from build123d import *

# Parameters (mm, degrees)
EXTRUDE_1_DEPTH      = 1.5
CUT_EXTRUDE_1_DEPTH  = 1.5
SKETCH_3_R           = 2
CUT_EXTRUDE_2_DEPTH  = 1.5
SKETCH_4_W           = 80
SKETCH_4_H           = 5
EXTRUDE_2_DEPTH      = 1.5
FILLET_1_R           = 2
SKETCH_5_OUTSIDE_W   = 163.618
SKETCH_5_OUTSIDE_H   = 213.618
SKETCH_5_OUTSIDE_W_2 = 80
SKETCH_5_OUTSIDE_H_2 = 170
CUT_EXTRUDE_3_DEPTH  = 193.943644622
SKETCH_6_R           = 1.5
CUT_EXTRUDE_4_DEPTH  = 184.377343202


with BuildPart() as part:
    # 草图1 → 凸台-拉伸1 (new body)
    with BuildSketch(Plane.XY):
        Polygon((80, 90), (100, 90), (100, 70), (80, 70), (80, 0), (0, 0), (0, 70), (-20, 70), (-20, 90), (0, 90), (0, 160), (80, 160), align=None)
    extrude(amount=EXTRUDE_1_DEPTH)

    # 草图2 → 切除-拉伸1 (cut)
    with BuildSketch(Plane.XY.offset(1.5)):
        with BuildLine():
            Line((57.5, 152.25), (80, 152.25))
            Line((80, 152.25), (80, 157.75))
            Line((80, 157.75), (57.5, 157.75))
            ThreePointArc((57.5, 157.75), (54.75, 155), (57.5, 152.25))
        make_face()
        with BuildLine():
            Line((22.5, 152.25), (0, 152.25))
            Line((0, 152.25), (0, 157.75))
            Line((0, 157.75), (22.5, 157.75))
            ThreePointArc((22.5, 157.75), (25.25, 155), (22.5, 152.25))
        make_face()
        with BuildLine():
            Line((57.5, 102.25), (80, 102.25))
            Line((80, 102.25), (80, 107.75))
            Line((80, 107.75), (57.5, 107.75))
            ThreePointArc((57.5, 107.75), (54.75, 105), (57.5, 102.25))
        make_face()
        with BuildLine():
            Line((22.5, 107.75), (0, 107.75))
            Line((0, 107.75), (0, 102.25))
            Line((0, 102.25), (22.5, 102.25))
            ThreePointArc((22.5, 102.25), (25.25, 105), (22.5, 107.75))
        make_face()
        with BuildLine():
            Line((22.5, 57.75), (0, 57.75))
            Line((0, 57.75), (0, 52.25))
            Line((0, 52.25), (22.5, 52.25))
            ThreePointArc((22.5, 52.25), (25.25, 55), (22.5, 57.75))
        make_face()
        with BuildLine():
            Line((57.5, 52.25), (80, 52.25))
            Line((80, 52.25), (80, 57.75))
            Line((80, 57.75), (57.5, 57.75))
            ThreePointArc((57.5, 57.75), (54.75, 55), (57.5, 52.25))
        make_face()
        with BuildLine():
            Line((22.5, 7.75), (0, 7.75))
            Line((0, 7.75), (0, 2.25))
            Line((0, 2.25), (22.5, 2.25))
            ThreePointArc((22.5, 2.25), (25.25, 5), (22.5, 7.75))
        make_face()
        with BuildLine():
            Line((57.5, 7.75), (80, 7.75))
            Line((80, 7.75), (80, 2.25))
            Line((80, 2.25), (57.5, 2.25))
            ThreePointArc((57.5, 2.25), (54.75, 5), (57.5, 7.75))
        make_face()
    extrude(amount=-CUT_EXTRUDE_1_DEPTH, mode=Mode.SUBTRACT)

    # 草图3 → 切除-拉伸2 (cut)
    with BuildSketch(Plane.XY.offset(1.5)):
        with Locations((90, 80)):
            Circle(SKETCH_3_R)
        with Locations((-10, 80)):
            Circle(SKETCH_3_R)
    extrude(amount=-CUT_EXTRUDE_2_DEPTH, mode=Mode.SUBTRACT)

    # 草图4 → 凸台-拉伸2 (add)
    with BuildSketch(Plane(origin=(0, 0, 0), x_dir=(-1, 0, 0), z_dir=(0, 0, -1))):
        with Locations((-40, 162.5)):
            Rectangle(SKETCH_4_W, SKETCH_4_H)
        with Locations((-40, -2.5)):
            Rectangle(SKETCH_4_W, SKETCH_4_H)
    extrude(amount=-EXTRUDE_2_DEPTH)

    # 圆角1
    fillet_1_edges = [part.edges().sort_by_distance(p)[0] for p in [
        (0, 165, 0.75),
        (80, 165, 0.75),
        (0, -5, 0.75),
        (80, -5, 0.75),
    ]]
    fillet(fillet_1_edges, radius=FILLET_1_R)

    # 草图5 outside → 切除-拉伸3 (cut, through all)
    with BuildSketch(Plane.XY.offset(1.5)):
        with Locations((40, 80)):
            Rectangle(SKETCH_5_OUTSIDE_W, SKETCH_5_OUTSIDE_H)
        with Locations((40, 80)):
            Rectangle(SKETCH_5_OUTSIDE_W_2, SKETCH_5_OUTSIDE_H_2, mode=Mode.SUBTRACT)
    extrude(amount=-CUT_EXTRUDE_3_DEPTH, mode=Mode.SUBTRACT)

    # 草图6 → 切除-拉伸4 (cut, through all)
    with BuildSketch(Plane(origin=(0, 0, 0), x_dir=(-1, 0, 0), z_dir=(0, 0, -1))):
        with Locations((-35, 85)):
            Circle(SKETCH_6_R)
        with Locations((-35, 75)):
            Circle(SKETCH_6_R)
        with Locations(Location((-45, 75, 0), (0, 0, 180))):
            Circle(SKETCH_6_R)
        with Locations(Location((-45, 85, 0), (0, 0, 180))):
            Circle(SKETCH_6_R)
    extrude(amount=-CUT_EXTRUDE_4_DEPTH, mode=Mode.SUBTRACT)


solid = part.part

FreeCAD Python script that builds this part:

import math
import FreeCAD as App
import Part
import Sketcher

V = App.Vector
Q = App.Units.Quantity


def edges_at(feature, points):
    """Names of the edges that pass closest to the given points."""
    edges = feature.Shape.Edges
    near = lambda p: min(range(len(edges)), key=lambda i: edges[i].distToShape(Part.Vertex(*p))[0])
    return sorted({f"Edge{near(p) + 1}" for p in points})


def add_polygon(sketch, points):
    """Adds a closed chain of lines whose ends are joined by coincident constraints."""
    first, n = sketch.GeometryCount, len(points)
    for a, b in zip(points, points[1:] + points[:1]):
        sketch.addGeometry(Part.LineSegment(App.Vector(*a, 0), App.Vector(*b, 0)), False)
    for i in range(n):
        sketch.addConstraint(Sketcher.Constraint("Coincident", first + i, 2, first + (i + 1) % n, 1))

doc = App.newDocument("Part")
body = doc.addObject("PartDesign::Body", "Body")

# Sketch on XY plane
sketch1 = body.newObject("Sketcher::SketchObject", "Sketch")
sketch1.AttachmentSupport = (doc.getObject("XY_Plane"), [""])
sketch1.MapMode = "FlatFace"
add_polygon(sketch1, [(100, 90), (80, 90), (80, 160), (0, 160), (0, 90), (-20, 90), (-20, 70), (0, 70), (0, 0), (80, 0), (80, 70), (100, 70)])  # lines 0-11
sketch1.addConstraint([
    Sketcher.Constraint("Horizontal", 0),
    Sketcher.Constraint("Vertical", 1),
    Sketcher.Constraint("Horizontal", 2),
    Sketcher.Constraint("Vertical", 3),
    Sketcher.Constraint("Horizontal", 4),
    Sketcher.Constraint("Vertical", 5),
    Sketcher.Constraint("Horizontal", 6),
    Sketcher.Constraint("Vertical", 7),
    Sketcher.Constraint("Horizontal", 8),
    Sketcher.Constraint("Vertical", 9),
    Sketcher.Constraint("Horizontal", 10),
    Sketcher.Constraint("Vertical", 11),
    Sketcher.Constraint("Coincident", 7, 2, -1, 1),
    Sketcher.Constraint("PointOnObject", 2, 2, -2),
    Sketcher.Constraint("Horizontal", 0, 2, 3, 2),
    Sketcher.Constraint("Horizontal", 6, 2, 9, 2),
    Sketcher.Constraint("Vertical", 1, 2, 8, 2),
    Sketcher.Constraint("Equal", 0, 4),
    Sketcher.Constraint("Equal", 10, 5),
    Sketcher.Constraint("Equal", 3, 7),
    Sketcher.Constraint("DistanceX", 0, 2, 0, 1, Q("20 mm")),
    Sketcher.Constraint("DistanceX", 2, 2, 2, 1, Q("80 mm")),
    Sketcher.Constraint("DistanceY", 1, 1, 1, 2, Q("70 mm")),
])
pad1 = body.newObject("PartDesign::Pad", "Pad")
pad1.Profile = sketch1
pad1.Length = 1.5

# Sketch on XY plane
sketch2 = body.newObject("Sketcher::SketchObject", "Sketch001")
sketch2.AttachmentSupport = (doc.getObject("XY_Plane"), [""])
sketch2.MapMode = "FlatFace"
sketch2.AttachmentOffset = App.Placement(V(0, 0, 1.5), App.Rotation())
sketch2.addGeometry([
    Part.LineSegment(V(57.5, 152.2, 0), V(80, 152.2, 0)),  # 0
    Part.LineSegment(V(80, 152.2, 0), V(80, 157.8, 0)),  # 1
    Part.LineSegment(V(80, 157.8, 0), V(57.5, 157.8, 0)),  # 2
    Part.ArcOfCircle(Part.Circle(V(57.5, 155, 0), V(0, 0, 1), 2.8), math.radians(90), math.radians(270)),  # 3
    Part.LineSegment(V(0, 152.2, 0), V(22.5, 152.2, 0)),  # 4
    Part.ArcOfCircle(Part.Circle(V(22.5, 155, 0), V(0, 0, 1), 2.8), math.radians(-90), math.radians(90)),  # 5
    Part.LineSegment(V(22.5, 157.8, 0), V(0, 157.8, 0)),  # 6
    Part.LineSegment(V(0, 157.8, 0), V(0, 152.2, 0)),  # 7
    Part.LineSegment(V(57.5, 102.2, 0), V(80, 102.2, 0)),  # 8
    Part.LineSegment(V(80, 102.2, 0), V(80, 107.8, 0)),  # 9
    Part.LineSegment(V(80, 107.8, 0), V(57.5, 107.8, 0)),  # 10
    Part.ArcOfCircle(Part.Circle(V(57.5, 105, 0), V(0, 0, 1), 2.8), math.radians(90), math.radians(270)),  # 11
    Part.LineSegment(V(22.5, 107.8, 0), V(0, 107.8, 0)),  # 12
    Part.LineSegment(V(0, 107.8, 0), V(0, 102.2, 0)),  # 13
    Part.LineSegment(V(0, 102.2, 0), V(22.5, 102.2, 0)),  # 14
    Part.ArcOfCircle(Part.Circle(V(22.5, 105, 0), V(0, 0, 1), 2.8), math.radians(-90), math.radians(90)),  # 15
    Part.LineSegment(V(22.5, 57.8, 0), V(0, 57.8, 0)),  # 16
    Part.LineSegment(V(0, 57.8, 0), V(0, 52.2, 0)),  # 17
    Part.LineSegment(V(0, 52.2, 0), V(22.5, 52.2, 0)),  # 18
    Part.ArcOfCircle(Part.Circle(V(22.5, 55, 0), V(0, 0, 1), 2.8), math.radians(-90), math.radians(90)),  # 19
    Part.LineSegment(V(57.5, 52.2, 0), V(80, 52.2, 0)),  # 20
    Part.LineSegment(V(80, 52.2, 0), V(80, 57.8, 0)),  # 21
    Part.LineSegment(V(80, 57.8, 0), V(57.5, 57.8, 0)),  # 22
    Part.ArcOfCircle(Part.Circle(V(57.5, 55, 0), V(0, 0, 1), 2.8), math.radians(90), math.radians(270)),  # 23
    Part.LineSegment(V(22.5, 7.8, 0), V(0, 7.8, 0)),  # 24
    Part.LineSegment(V(0, 7.8, 0), V(0, 2.2, 0)),  # 25
    Part.LineSegment(V(0, 2.2, 0), V(22.5, 2.2, 0)),  # 26
    Part.ArcOfCircle(Part.Circle(V(22.5, 5, 0), V(0, 0, 1), 2.8), math.radians(-90), math.radians(90)),  # 27
    Part.LineSegment(V(80, 7.8, 0), V(57.5, 7.8, 0)),  # 28
    Part.ArcOfCircle(Part.Circle(V(57.5, 5, 0), V(0, 0, 1), 2.8), math.radians(90), math.radians(270)),  # 29
    Part.LineSegment(V(57.5, 2.2, 0), V(80, 2.2, 0)),  # 30
    Part.LineSegment(V(80, 2.2, 0), V(80, 7.8, 0)),  # 31
], False)
sketch2.addConstraint([
    Sketcher.Constraint("Coincident", 0, 2, 1, 1),
    Sketcher.Constraint("Coincident", 1, 2, 2, 1),
    Sketcher.Constraint("Tangent", 2, 2, 3, 1),
    Sketcher.Constraint("Tangent", 3, 2, 0, 1),
    Sketcher.Constraint("Tangent", 4, 2, 5, 1),
    Sketcher.Constraint("Tangent", 5, 2, 6, 1),
    Sketcher.Constraint("Coincident", 6, 2, 7, 1),
    Sketcher.Constraint("Coincident", 7, 2, 4, 1),
    Sketcher.Constraint("Coincident", 8, 2, 9, 1),
    Sketcher.Constraint("Coincident", 9, 2, 10, 1),
    Sketcher.Constraint("Tangent", 10, 2, 11, 1),
    Sketcher.Constraint("Tangent", 11, 2, 8, 1),
    Sketcher.Constraint("Coincident", 12, 2, 13, 1),
    Sketcher.Constraint("Coincident", 13, 2, 14, 1),
    Sketcher.Constraint("Tangent", 14, 2, 15, 1),
    Sketcher.Constraint("Tangent", 15, 2, 12, 1),
    Sketcher.Constraint("Coincident", 16, 2, 17, 1),
    Sketcher.Constraint("Coincident", 17, 2, 18, 1),
    Sketcher.Constraint("Tangent", 18, 2, 19, 1),
    Sketcher.Constraint("Tangent", 19, 2, 16, 1),
    Sketcher.Constraint("Coincident", 20, 2, 21, 1),
    Sketcher.Constraint("Coincident", 21, 2, 22, 1),
    Sketcher.Constraint("Tangent", 22, 2, 23, 1),
    Sketcher.Constraint("Tangent", 23, 2, 20, 1),
    Sketcher.Constraint("Coincident", 24, 2, 25, 1),
    Sketcher.Constraint("Coincident", 25, 2, 26, 1),
    Sketcher.Constraint("Tangent", 26, 2, 27, 1),
    Sketcher.Constraint("Tangent", 27, 2, 24, 1),
    Sketcher.Constraint("Tangent", 28, 2, 29, 1),
    Sketcher.Constraint("Tangent", 29, 2, 30, 1),
    Sketcher.Constraint("Coincident", 30, 2, 31, 1),
    Sketcher.Constraint("Coincident", 31, 2, 28, 1),
    Sketcher.Constraint("Horizontal", 0),
    Sketcher.Constraint("Vertical", 1),
    Sketcher.Constraint("Horizontal", 2),
    Sketcher.Constraint("Horizontal", 4),
    Sketcher.Constraint("Horizontal", 6),
    Sketcher.Constraint("Vertical", 7),
    Sketcher.Constraint("Horizontal", 8),
    Sketcher.Constraint("Vertical", 9),
    Sketcher.Constraint("Horizontal", 10),
    Sketcher.Constraint("Horizontal", 12),
    Sketcher.Constraint("Vertical", 13),
    Sketcher.Constraint("Horizontal", 14),
    Sketcher.Constraint("Horizontal", 16),
    Sketcher.Constraint("Vertical", 17),
    Sketcher.Constraint("Horizontal", 18),
    Sketcher.Constraint("Horizontal", 20),
    Sketcher.Constraint("Vertical", 21),
    Sketcher.Constraint("Horizontal", 22),
    Sketcher.Constraint("Horizontal", 24),
    Sketcher.Constraint("Vertical", 25),
    Sketcher.Constraint("Horizontal", 26),
    Sketcher.Constraint("Horizontal", 28),
    Sketcher.Constraint("Horizontal", 30),
    Sketcher.Constraint("Vertical", 31),
    Sketcher.Constraint("Equal", 3, 5),
    Sketcher.Constraint("Equal", 5, 11),
    Sketcher.Constraint("Equal", 11, 15),
    Sketcher.Constraint("Equal", 15, 19),
    Sketcher.Constraint("Equal", 19, 23),
    Sketcher.Constraint("Equal", 23, 27),
    Sketcher.Constraint("Equal", 27, 29),
    Sketcher.Constraint("PointOnObject", 6, 2, -2),
    Sketcher.Constraint("PointOnObject", 12, 2, -2),
    Sketcher.Constraint("PointOnObject", 16, 2, -2),
    Sketcher.Constraint("PointOnObject", 24, 2, -2),
    Sketcher.Constraint("Horizontal", 3, 3, 5, 3),
    Sketcher.Constraint("Horizontal", 11, 3, 15, 3),
    Sketcher.Constraint("Horizontal", 19, 3, 23, 3),
    Sketcher.Constraint("Horizontal", 27, 3, 29, 3),
    Sketcher.Constraint("Vertical", 3, 3, 11, 3),
    Sketcher.Constraint("Vertical", 5, 3, 15, 3),
    Sketcher.Constraint("Vertical", 15, 3, 19, 3),
    Sketcher.Constraint("Vertical", 11, 3, 23, 3),
    Sketcher.Constraint("Vertical", 19, 3, 27, 3),
    Sketcher.Constraint("Vertical", 23, 3, 29, 3),
    Sketcher.Constraint("Vertical", 1, 2, 8, 2),
    Sketcher.Constraint("Vertical", 9, 2, 20, 2),
    Sketcher.Constraint("Vertical", 21, 2, 30, 2),
    Sketcher.Constraint("Equal", 2, 4),
    Sketcher.Constraint("Radius", 3, Q("2.75 mm")),
    Sketcher.Constraint("DistanceX", 0, 1, 0, 2, Q("22.5 mm")),
    Sketcher.Constraint("DistanceY", -1, 1, 3, 3, Q("155 mm")),
    Sketcher.Constraint("DistanceY", -1, 1, 11, 3, Q("105 mm")),
    Sketcher.Constraint("DistanceY", -1, 1, 19, 3, Q("55 mm")),
    Sketcher.Constraint("DistanceY", -1, 1, 27, 3, Q("5 mm")),
    Sketcher.Constraint("DistanceX", -1, 1, 0, 2, Q("80 mm")),
])
pocket1 = body.newObject("PartDesign::Pocket", "Pocket")
pocket1.Profile = sketch2
pocket1.Length = 1.5

# Sketch on XY plane
sketch3 = body.newObject("Sketcher::SketchObject", "Sketch002")
sketch3.AttachmentSupport = (doc.getObject("XY_Plane"), [""])
sketch3.MapMode = "FlatFace"
sketch3.AttachmentOffset = App.Placement(V(0, 0, 1.5), App.Rotation())
sketch3.addGeometry([
    Part.Circle(V(90, 80, 0), V(0, 0, 1), 2),
    Part.Circle(V(-10, 80, 0), V(0, 0, 1), 2),
], False)
sketch3.addConstraint([
    Sketcher.Constraint("Equal", 0, 1),
    Sketcher.Constraint("Horizontal", 0, 3, 1, 3),
    Sketcher.Constraint("Diameter", 0, Q("4 mm")),
    Sketcher.Constraint("DistanceX", -1, 1, 0, 3, Q("90 mm")),
    Sketcher.Constraint("DistanceY", -1, 1, 0, 3, Q("80 mm")),
    Sketcher.Constraint("DistanceX", 1, 3, -1, 1, Q("10 mm")),
])
pocket2 = body.newObject("PartDesign::Pocket", "Pocket001")
pocket2.Profile = sketch3
pocket2.Length = 1.5

# Sketch on XY plane
sketch4 = body.newObject("Sketcher::SketchObject", "Sketch003")
sketch4.AttachmentSupport = (doc.getObject("XY_Plane"), [""])
sketch4.MapMode = "FlatFace"
add_polygon(sketch4, [(80, 165), (80, 160), (0, 160), (0, 165)])  # lines 0-3
add_polygon(sketch4, [(80, 0), (80, -5), (0, -5), (0, 0)])  # lines 4-7
sketch4.addConstraint([
    Sketcher.Constraint("Vertical", 0),
    Sketcher.Constraint("Horizontal", 1),
    Sketcher.Constraint("Vertical", 2),
    Sketcher.Constraint("Horizontal", 3),
    Sketcher.Constraint("Vertical", 4),
    Sketcher.Constraint("Horizontal", 5),
    Sketcher.Constraint("Vertical", 6),
    Sketcher.Constraint("Horizontal", 7),
    Sketcher.Constraint("Coincident", 6, 2, -1, 1),
    Sketcher.Constraint("PointOnObject", 1, 2, -2),
    Sketcher.Constraint("Vertical", 3, 2, 4, 2),
    Sketcher.Constraint("Equal", 2, 4),
    Sketcher.Constraint("DistanceX", 1, 2, 1, 1, Q("80 mm")),
    Sketcher.Constraint("DistanceY", 0, 2, 0, 1, Q("5 mm")),
    Sketcher.Constraint("DistanceY", -1, 1, 0, 2, Q("160 mm")),
])
pad2 = body.newObject("PartDesign::Pad", "Pad001")
pad2.Profile = sketch4
pad2.Length = 1.5
doc.recompute()

fillet = body.newObject("PartDesign::Fillet", "Fillet")
fillet.Base = (pad2, edges_at(pad2, [
    (0, 165, 0.75),
    (80, 165, 0.75),
    (0, -5, 0.75),
    (80, -5, 0.75),
]))
fillet.Radius = 2

# Sketch on XY plane
sketch5 = body.newObject("Sketcher::SketchObject", "Sketch004")
sketch5.AttachmentSupport = (doc.getObject("XY_Plane"), [""])
sketch5.MapMode = "FlatFace"
sketch5.AttachmentOffset = App.Placement(V(0, 0, 1.5), App.Rotation())
add_polygon(sketch5, [(-42, 187), (-42, -27), (122, -27), (122, 187)])  # lines 0-3
add_polygon(sketch5, [(80, -5), (0, -5), (0, 165), (80, 165)])  # lines 4-7
sketch5.addConstraint([
    Sketcher.Constraint("Vertical", 0),
    Sketcher.Constraint("Horizontal", 1),
    Sketcher.Constraint("Vertical", 2),
    Sketcher.Constraint("Horizontal", 3),
    Sketcher.Constraint("Horizontal", 4),
    Sketcher.Constraint("Vertical", 5),
    Sketcher.Constraint("Horizontal", 6),
    Sketcher.Constraint("Vertical", 7),
    Sketcher.Constraint("PointOnObject", 4, 2, -2),
    Sketcher.Constraint("DistanceX", 4, 2, 4, 1, Q("80 mm")),
    Sketcher.Constraint("DistanceY", 5, 1, 5, 2, Q("170 mm")),
    Sketcher.Constraint("DistanceY", 4, 2, -1, 1, Q("5 mm")),
    Sketcher.Constraint("DistanceX", 1, 1, 1, 2, Q("163.618 mm")),
    Sketcher.Constraint("DistanceY", 0, 2, 0, 1, Q("213.618 mm")),
    Sketcher.Constraint("DistanceX", 0, 2, -1, 1, Q("41.809 mm")),
    Sketcher.Constraint("DistanceY", 0, 2, -1, 1, Q("26.809 mm")),
])
pocket3 = body.newObject("PartDesign::Pocket", "Pocket002")
pocket3.Profile = sketch5
pocket3.Type = "ThroughAll"

# Sketch on XY plane
sketch6 = body.newObject("Sketcher::SketchObject", "Sketch005")
sketch6.AttachmentSupport = (doc.getObject("XY_Plane"), [""])
sketch6.MapMode = "FlatFace"
sketch6.addGeometry([
    Part.Circle(V(35, 85, 0), V(0, 0, 1), 1.5),
    Part.Circle(V(35, 75, 0), V(0, 0, 1), 1.5),
    Part.Circle(V(45, 75, 0), V(0, 0, 1), 1.5),
    Part.Circle(V(45, 85, 0), V(0, 0, 1), 1.5),
], False)
sketch6.addConstraint([
    Sketcher.Constraint("Equal", 0, 1),
    Sketcher.Constraint("Equal", 1, 2),
    Sketcher.Constraint("Equal", 2, 3),
    Sketcher.Constraint("Horizontal", 1, 3, 2, 3),
    Sketcher.Constraint("Horizontal", 0, 3, 3, 3),
    Sketcher.Constraint("Vertical", 0, 3, 1, 3),
    Sketcher.Constraint("Vertical", 2, 3, 3, 3),
    Sketcher.Constraint("Diameter", 0, Q("3 mm")),
    Sketcher.Constraint("DistanceX", -1, 1, 0, 3, Q("35 mm")),
    Sketcher.Constraint("DistanceY", -1, 1, 0, 3, Q("85 mm")),
    Sketcher.Constraint("DistanceY", -1, 1, 1, 3, Q("75 mm")),
    Sketcher.Constraint("DistanceX", -1, 1, 2, 3, Q("45 mm")),
])
pocket4 = body.newObject("PartDesign::Pocket", "Pocket003")
pocket4.Profile = sketch6
pocket4.Type = "ThroughAll"
pocket4.Reversed = True

doc.recompute()
